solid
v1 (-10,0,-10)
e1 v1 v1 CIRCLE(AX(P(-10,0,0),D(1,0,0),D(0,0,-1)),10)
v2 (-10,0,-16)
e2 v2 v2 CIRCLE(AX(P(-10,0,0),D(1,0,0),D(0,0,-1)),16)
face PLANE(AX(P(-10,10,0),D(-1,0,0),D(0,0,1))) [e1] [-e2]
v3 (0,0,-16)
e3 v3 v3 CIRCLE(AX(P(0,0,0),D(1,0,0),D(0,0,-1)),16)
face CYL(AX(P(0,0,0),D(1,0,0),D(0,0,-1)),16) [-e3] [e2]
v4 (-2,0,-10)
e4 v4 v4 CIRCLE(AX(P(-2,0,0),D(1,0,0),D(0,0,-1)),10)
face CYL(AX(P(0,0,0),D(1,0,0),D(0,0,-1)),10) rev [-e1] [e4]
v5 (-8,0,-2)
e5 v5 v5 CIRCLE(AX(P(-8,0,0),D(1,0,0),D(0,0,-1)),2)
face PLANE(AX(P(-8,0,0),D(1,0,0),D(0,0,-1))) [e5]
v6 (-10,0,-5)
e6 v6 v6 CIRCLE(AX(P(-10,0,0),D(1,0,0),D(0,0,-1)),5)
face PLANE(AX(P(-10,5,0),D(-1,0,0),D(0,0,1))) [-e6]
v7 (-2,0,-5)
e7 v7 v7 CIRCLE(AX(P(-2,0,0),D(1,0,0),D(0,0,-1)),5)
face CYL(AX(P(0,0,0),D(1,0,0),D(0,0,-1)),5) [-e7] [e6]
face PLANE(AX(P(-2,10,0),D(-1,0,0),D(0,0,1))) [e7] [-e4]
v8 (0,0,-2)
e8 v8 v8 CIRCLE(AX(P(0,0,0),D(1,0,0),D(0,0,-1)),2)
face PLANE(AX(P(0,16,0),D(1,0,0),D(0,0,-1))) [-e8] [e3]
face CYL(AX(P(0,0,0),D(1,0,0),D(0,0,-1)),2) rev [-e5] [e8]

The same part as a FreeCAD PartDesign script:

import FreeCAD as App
import Part
import Sketcher


def add_polygon(sketch, points):
    """Adds a closed chain of lines whose ends are joined by coincident constraints."""
    first, n = sketch.GeometryCount, len(points)
    for a, b in zip(points, points[1:] + points[:1]):
        sketch.addGeometry(Part.LineSegment(App.Vector(*a, 0), App.Vector(*b, 0)), False)
    for i in range(n):
        sketch.addConstraint(Sketcher.Constraint("Coincident", first + i, 2, first + (i + 1) % n, 1))

doc = App.newDocument("Part")
body = doc.addObject("PartDesign::Body", "Body")

# Sketch on XY plane
sketch1 = doc.addObject("Sketcher::SketchObject", "Sketch")
body.addObject(sketch1)
sketch1.AttachmentSupport = (doc.XY_Plane, [""])
sketch1.MapMode = "FlatFace"
add_polygon(sketch1, [(0, 2), (0, 16), (-10, 16), (-10, 10), (-2, 10), (-2, 5), (-10, 5), (-10, 0), (-8, 0), (-8, 2)])  # lines 0-9
sketch1.addConstraint([
    Sketcher.Constraint("Vertical", 0),
    Sketcher.Constraint("Horizontal", 1),
    Sketcher.Constraint("Vertical", 2),
    Sketcher.Constraint("Horizontal", 3),
    Sketcher.Constraint("Vertical", 4),
    Sketcher.Constraint("Horizontal", 5),
    Sketcher.Constraint("Vertical", 6),
    Sketcher.Constraint("Horizontal", 7),
    Sketcher.Constraint("Vertical", 8),
    Sketcher.Constraint("Horizontal", 9),
    Sketcher.Constraint("PointOnObject", 0, 2, -2),
    Sketcher.Constraint("PointOnObject", 6, 2, -1),
    Sketcher.Constraint("Vertical", 2, 2, 5, 2),
    Sketcher.Constraint("Equal", 5, 9),
    Sketcher.Constraint("Equal", 4, 6),
    Sketcher.Constraint("Equal", 7, 8),
    Sketcher.Constraint("DistanceX", 1, 2, 1, 1, 10.0),
    Sketcher.Constraint("DistanceX", 3, 1, 3, 2, 8.0),
    Sketcher.Constraint("DistanceY", 0, 1, 0, 2, 14.0),
    Sketcher.Constraint("DistanceY", 2, 2, 2, 1, 6.0),
])
revolution = doc.addObject("PartDesign::Revolution", "Revolution")
body.addObject(revolution)
revolution.Profile = sketch1
revolution.ReferenceAxis = (sketch1, ["H_Axis"])
revolution.Angle = 360

doc.recompute()
